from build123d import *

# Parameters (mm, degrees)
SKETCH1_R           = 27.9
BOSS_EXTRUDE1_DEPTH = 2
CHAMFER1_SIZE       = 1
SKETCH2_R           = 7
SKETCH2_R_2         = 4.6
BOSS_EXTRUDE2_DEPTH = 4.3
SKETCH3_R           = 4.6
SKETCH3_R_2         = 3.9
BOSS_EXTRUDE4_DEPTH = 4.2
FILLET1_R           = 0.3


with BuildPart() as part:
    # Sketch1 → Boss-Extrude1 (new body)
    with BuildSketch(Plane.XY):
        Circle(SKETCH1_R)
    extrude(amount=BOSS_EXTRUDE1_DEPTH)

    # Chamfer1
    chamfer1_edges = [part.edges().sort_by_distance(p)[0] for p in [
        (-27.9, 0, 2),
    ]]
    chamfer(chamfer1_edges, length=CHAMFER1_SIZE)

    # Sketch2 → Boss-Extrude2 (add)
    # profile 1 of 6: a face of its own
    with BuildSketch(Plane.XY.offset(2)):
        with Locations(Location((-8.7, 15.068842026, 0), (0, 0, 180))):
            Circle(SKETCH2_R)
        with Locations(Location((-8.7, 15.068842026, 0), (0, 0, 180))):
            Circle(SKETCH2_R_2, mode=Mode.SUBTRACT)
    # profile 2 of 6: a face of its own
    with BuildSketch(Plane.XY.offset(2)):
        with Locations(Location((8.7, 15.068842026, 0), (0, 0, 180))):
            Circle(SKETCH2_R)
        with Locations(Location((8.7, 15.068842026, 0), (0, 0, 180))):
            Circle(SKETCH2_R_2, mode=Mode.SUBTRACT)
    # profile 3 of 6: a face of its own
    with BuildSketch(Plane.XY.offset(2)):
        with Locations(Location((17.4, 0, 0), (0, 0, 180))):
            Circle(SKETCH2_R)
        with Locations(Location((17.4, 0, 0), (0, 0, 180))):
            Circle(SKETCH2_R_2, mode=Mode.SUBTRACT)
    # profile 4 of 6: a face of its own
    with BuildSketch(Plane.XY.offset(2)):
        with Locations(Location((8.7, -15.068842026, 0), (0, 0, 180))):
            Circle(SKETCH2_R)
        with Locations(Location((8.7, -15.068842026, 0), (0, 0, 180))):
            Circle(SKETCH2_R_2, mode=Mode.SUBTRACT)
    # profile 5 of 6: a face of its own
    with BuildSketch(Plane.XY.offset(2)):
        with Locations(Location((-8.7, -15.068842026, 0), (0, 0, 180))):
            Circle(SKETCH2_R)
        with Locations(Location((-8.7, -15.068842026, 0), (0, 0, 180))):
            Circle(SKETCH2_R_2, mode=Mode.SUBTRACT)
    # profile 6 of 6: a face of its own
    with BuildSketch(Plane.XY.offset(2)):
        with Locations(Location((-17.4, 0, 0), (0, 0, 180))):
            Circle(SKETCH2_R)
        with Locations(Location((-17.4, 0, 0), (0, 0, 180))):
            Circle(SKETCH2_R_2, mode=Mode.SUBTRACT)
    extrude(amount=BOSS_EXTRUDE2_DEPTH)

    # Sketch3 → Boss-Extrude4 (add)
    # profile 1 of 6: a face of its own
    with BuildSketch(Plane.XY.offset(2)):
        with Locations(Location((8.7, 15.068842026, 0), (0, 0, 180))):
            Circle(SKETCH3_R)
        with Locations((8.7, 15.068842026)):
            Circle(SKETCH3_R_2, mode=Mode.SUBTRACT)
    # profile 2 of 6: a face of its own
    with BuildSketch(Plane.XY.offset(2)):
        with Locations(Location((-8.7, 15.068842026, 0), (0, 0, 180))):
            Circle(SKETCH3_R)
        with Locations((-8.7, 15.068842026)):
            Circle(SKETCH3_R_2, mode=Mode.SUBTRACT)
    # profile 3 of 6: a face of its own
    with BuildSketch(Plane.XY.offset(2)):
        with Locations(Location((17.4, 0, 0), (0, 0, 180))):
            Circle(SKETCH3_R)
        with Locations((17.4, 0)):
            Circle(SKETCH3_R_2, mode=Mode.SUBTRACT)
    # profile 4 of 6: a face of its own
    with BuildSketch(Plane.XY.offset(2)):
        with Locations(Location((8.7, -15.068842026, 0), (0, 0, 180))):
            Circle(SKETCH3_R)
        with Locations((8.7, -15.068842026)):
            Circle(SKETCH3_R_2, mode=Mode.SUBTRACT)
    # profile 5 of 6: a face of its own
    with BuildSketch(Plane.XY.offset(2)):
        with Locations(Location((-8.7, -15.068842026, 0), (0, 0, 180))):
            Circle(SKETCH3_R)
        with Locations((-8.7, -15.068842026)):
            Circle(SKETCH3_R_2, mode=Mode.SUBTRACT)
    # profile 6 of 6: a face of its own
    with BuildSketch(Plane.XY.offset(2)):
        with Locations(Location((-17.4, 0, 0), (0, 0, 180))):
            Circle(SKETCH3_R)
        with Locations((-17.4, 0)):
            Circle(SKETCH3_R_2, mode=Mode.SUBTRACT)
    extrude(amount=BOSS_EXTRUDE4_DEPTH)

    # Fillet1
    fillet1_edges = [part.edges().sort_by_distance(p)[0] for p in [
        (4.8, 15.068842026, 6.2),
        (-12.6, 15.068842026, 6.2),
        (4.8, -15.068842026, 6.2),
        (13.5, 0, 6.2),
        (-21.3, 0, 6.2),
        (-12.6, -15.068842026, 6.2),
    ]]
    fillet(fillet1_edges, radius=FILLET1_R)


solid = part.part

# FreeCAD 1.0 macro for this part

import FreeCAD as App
import Part
import Sketcher


def edges_at(feature, points):
    """Names of the edges that pass closest to the given points."""
    edges = feature.Shape.Edges
    near = lambda p: min(range(len(edges)), key=lambda i: edges[i].distToShape(Part.Vertex(*p))[0])
    return sorted({f"Edge{near(p) + 1}" for p in points})

doc = App.newDocument("Part")
body = doc.addObject("PartDesign::Body", "Body")

# Sketch on XY plane
sketch1 = body.newObject("Sketcher::SketchObject", "Sketch")
sketch1.AttachmentSupport = (doc.getObject("XY_Plane"), [""])
sketch1.MapMode = "FlatFace"
sketch1.addGeometry(Part.Circle(App.Vector(0, 0, 0), App.Vector(0, 0, 1), 28), False)
sketch1.addConstraint([
    Sketcher.Constraint("Coincident", 0, 3, -1, 1),
    Sketcher.Constraint("Diameter", 0, 55.8),
])
pad1 = body.newObject("PartDesign::Pad", "Pad")
pad1.Profile = sketch1
pad1.Length = 2
doc.recompute()

chamfer = body.newObject("PartDesign::Chamfer", "Chamfer")
chamfer.Base = (pad1, edges_at(pad1, [(-27.9, 0, 2)]))
chamfer.Size = 1

# Sketch on XY plane
sketch2 = body.newObject("Sketcher::SketchObject", "Sketch001")
sketch2.AttachmentSupport = (doc.getObject("XY_Plane"), [""])
sketch2.MapMode = "FlatFace"
sketch2.AttachmentOffset = App.Placement(App.Vector(0, 0, 2), App.Rotation())
sketch2.addGeometry([
    Part.Circle(App.Vector(-8.7, 15.1, 0), App.Vector(0, 0, 1), 7),  # 0
    Part.Circle(App.Vector(-8.7, 15.1, 0), App.Vector(0, 0, 1), 4.6),  # 1
    Part.Circle(App.Vector(8.7, 15.1, 0), App.Vector(0, 0, 1), 7),  # 2
    Part.Circle(App.Vector(8.7, 15.1, 0), App.Vector(0, 0, 1), 4.6),  # 3
    Part.Circle(App.Vector(17.4, 0, 0), App.Vector(0, 0, 1), 7),  # 4
    Part.Circle(App.Vector(17.4, 0, 0), App.Vector(0, 0, 1), 4.6),  # 5
    Part.Circle(App.Vector(8.7, -15.1, 0), App.Vector(0, 0, 1), 7),  # 6
    Part.Circle(App.Vector(8.7, -15.1, 0), App.Vector(0, 0, 1), 4.6),  # 7
    Part.Circle(App.Vector(-8.7, -15.1, 0), App.Vector(0, 0, 1), 7),  # 8
    Part.Circle(App.Vector(-8.7, -15.1, 0), App.Vector(0, 0, 1), 4.6),  # 9
    Part.Circle(App.Vector(-17.4, 0, 0), App.Vector(0, 0, 1), 7),  # 10
    Part.Circle(App.Vector(-17.4, 0, 0), App.Vector(0, 0, 1), 4.6),  # 11
], False)
sketch2.addConstraint([
    Sketcher.Constraint("Coincident", 1, 3, 0, 3),
    Sketcher.Constraint("Coincident", 3, 3, 2, 3),
    Sketcher.Constraint("Coincident", 5, 3, 4, 3),
    Sketcher.Constraint("Coincident", 7, 3, 6, 3),
    Sketcher.Constraint("Coincident", 9, 3, 8, 3),
    Sketcher.Constraint("Coincident", 11, 3, 10, 3),
    Sketcher.Constraint("Equal", 0, 2),
    Sketcher.Constraint("Equal", 1, 3),
    Sketcher.Constraint("Equal", 2, 4),
    Sketcher.Constraint("Equal", 3, 5),
    Sketcher.Constraint("Equal", 4, 6),
    Sketcher.Constraint("Equal", 5, 7),
    Sketcher.Constraint("Equal", 6, 8),
    Sketcher.Constraint("Equal", 7, 9),
    Sketcher.Constraint("Equal", 8, 10),
    Sketcher.Constraint("Equal", 9, 11),
    Sketcher.Constraint("Symmetric", 0, 3, 6, 3, -1, 1),
    Sketcher.Constraint("Symmetric", 2, 3, 8, 3, -1, 1),
    Sketcher.Constraint("Symmetric", 4, 3, 10, 3, -1, 1),
    Sketcher.Constraint("Symmetric", 0, 3, 2, 3, -2),
    Sketcher.Constraint("PointOnObject", 4, 3, -1),
    Sketcher.Constraint("Diameter", 0, 14.0),
    Sketcher.Constraint("Diameter", 1, 9.2),
    Sketcher.Constraint("DistanceX", 0, 3, -1, 1, 8.7),
    Sketcher.Constraint("DistanceX", -1, 1, 4, 3, 17.4),
    Sketcher.Constraint("DistanceY", -1, 1, 0, 3, 15.068842),
])
pad2 = body.newObject("PartDesign::Pad", "Pad001")
pad2.Profile = sketch2
pad2.Length = 4.3

# Sketch on XY plane
sketch3 = body.newObject("Sketcher::SketchObject", "Sketch002")
sketch3.AttachmentSupport = (doc.getObject("XY_Plane"), [""])
sketch3.MapMode = "FlatFace"
sketch3.AttachmentOffset = App.Placement(App.Vector(0, 0, 2), App.Rotation())
sketch3.addGeometry([
    Part.Circle(App.Vector(8.7, 15.1, 0), App.Vector(0, 0, 1), 4.6),  # 0
    Part.Circle(App.Vector(8.7, 15.1, 0), App.Vector(0, 0, 1), 3.9),  # 1
    Part.Circle(App.Vector(-8.7, 15.1, 0), App.Vector(0, 0, 1), 4.6),  # 2
    Part.Circle(App.Vector(-8.7, 15.1, 0), App.Vector(0, 0, 1), 3.9),  # 3
    Part.Circle(App.Vector(17.4, 0, 0), App.Vector(0, 0, 1), 4.6),  # 4
    Part.Circle(App.Vector(17.4, 0, 0), App.Vector(0, 0, 1), 3.9),  # 5
    Part.Circle(App.Vector(8.7, -15.1, 0), App.Vector(0, 0, 1), 4.6),  # 6
    Part.Circle(App.Vector(8.7, -15.1, 0), App.Vector(0, 0, 1), 3.9),  # 7
    Part.Circle(App.Vector(-8.7, -15.1, 0), App.Vector(0, 0, 1), 4.6),  # 8
    Part.Circle(App.Vector(-8.7, -15.1, 0), App.Vector(0, 0, 1), 3.9),  # 9
    Part.Circle(App.Vector(-17.4, 0, 0), App.Vector(0, 0, 1), 4.6),  # 10
    Part.Circle(App.Vector(-17.4, 0, 0), App.Vector(0, 0, 1), 3.9),  # 11
], False)
sketch3.addConstraint([
    Sketcher.Constraint("Coincident", 1, 3, 0, 3),
    Sketcher.Constraint("Coincident", 3, 3, 2, 3),
    Sketcher.Constraint("Coincident", 5, 3, 4, 3),
    Sketcher.Constraint("Coincident", 7, 3, 6, 3),
    Sketcher.Constraint("Coincident", 9, 3, 8, 3),
    Sketcher.Constraint("Coincident", 11, 3, 10, 3),
    Sketcher.Constraint("Equal", 0, 2),
    Sketcher.Constraint("Equal", 1, 3),
    Sketcher.Constraint("Equal", 2, 4),
    Sketcher.Constraint("Equal", 3, 5),
    Sketcher.Constraint("Equal", 4, 6),
    Sketcher.Constraint("Equal", 5, 7),
    Sketcher.Constraint("Equal", 6, 8),
    Sketcher.Constraint("Equal", 7, 9),
    Sketcher.Constraint("Equal", 8, 10),
    Sketcher.Constraint("Equal", 9, 11),
    Sketcher.Constraint("Symmetric", 2, 3, 6, 3, -1, 1),
    Sketcher.Constraint("Symmetric", 0, 3, 8, 3, -1, 1),
    Sketcher.Constraint("Symmetric", 4, 3, 10, 3, -1, 1),
    Sketcher.Constraint("Symmetric", 0, 3, 2, 3, -2),
    Sketcher.Constraint("PointOnObject", 4, 3, -1),
    Sketcher.Constraint("Diameter", 0, 9.2),
    Sketcher.Constraint("Diameter", 1, 7.8),
    Sketcher.Constraint("DistanceX", -1, 1, 0, 3, 8.7),
    Sketcher.Constraint("DistanceX", -1, 1, 4, 3, 17.4),
    Sketcher.Constraint("DistanceY", -1, 1, 0, 3, 15.068842),
])
pad3 = body.newObject("PartDesign::Pad", "Pad002")
pad3.Profile = sketch3
pad3.Length = 4.2
doc.recompute()

fillet = body.newObject("PartDesign::Fillet", "Fillet")
fillet.Base = (pad3, edges_at(pad3, [
    (4.8, 15.069, 6.2),
    (-12.6, 15.069, 6.2),
    (4.8, -15.069, 6.2),
    (13.5, 0, 6.2),
    (-21.3, 0, 6.2),
    (-12.6, -15.069, 6.2),
]))
fillet.Radius = 0.3

doc.recompute()
